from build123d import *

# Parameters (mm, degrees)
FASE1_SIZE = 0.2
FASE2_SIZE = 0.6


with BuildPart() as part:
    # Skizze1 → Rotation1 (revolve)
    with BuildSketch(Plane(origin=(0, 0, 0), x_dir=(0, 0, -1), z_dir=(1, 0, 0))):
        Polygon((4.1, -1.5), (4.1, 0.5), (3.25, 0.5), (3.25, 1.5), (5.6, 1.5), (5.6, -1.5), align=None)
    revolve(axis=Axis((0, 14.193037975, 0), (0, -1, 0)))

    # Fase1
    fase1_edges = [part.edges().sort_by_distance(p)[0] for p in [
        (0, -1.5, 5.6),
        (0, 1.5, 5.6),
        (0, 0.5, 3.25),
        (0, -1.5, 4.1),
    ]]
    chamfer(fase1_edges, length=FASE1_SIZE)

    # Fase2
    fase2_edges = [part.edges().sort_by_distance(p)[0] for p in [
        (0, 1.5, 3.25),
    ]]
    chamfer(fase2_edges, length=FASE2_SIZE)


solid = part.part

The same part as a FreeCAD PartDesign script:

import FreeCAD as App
import Part
import Sketcher
from FreeCAD import Vector


def edges_at(feature, points):
    """Names of the edges that pass closest to the given points."""
    edges = feature.Shape.Edges
    near = lambda p: min(range(len(edges)), key=lambda i: edges[i].distToShape(Part.Vertex(*p))[0])
    return sorted({f"Edge{near(p) + 1}" for p in points})

doc = App.newDocument("Part")
body = doc.addObject("PartDesign::Body", "Body")

sketch1 = body.newObject("Sketcher::SketchObject", "Sketch")
sketch1.AttachmentSupport = (doc.getObject("YZ_Plane"), [""])
sketch1.MapMode = "FlatFace"
sketch1.addGeometry([
    Part.LineSegment(Vector(0.5, -4.1, 0), Vector(-1.5, -4.1, 0)),
    Part.LineSegment(Vector(-1.5, -4.1, 0), Vector(-1.5, -5.6, 0)),
    Part.LineSegment(Vector(-1.5, -5.6, 0), Vector(1.5, -5.6, 0)),
    Part.LineSegment(Vector(1.5, -5.6, 0), Vector(1.5, -3.2, 0)),
    Part.LineSegment(Vector(1.5, -3.2, 0), Vector(0.5, -3.2, 0)),
    Part.LineSegment(Vector(0.5, -3.2, 0), Vector(0.5, -4.1, 0)),
], False)
sketch1.addConstraint([
    Sketcher.Constraint("Coincident", 0, 2, 1, 1),
    Sketcher.Constraint("Coincident", 1, 2, 2, 1),
    Sketcher.Constraint("Coincident", 2, 2, 3, 1),
    Sketcher.Constraint("Coincident", 3, 2, 4, 1),
    Sketcher.Constraint("Coincident", 4, 2, 5, 1),
    Sketcher.Constraint("Coincident", 5, 2, 0, 1),
    Sketcher.Constraint("Horizontal", 0),
    Sketcher.Constraint("Vertical", 1),
    Sketcher.Constraint("Horizontal", 2),
    Sketcher.Constraint("Vertical", 3),
    Sketcher.Constraint("Horizontal", 4),
    Sketcher.Constraint("Vertical", 5),
    Sketcher.Constraint("DistanceX", 0, 2, 0, 1, 2.0),
    Sketcher.Constraint("DistanceX", 2, 1, 2, 2, 3.0),
    Sketcher.Constraint("DistanceY", 1, 2, 1, 1, 1.5),
    Sketcher.Constraint("DistanceY", 3, 1, 3, 2, 2.35),
    Sketcher.Constraint("DistanceX", 0, 2, -1, 1, 1.5),
    Sketcher.Constraint("DistanceY", 0, 2, -1, 1, 4.1),
])
revolution = body.newObject("PartDesign::Revolution", "Revolution")
revolution.Profile = sketch1
revolution.ReferenceAxis = (sketch1, ["H_Axis"])
revolution.Angle = 360
doc.recompute()

chamfer = body.newObject("PartDesign::Chamfer", "Chamfer")
chamfer.Base = (revolution, edges_at(revolution, [
    (0, -1.5, 5.6),
    (0, 1.5, 5.6),
    (0, 0.5, 3.25),
    (0, -1.5, 4.1),
]))
chamfer.Size = 0.2
doc.recompute()

chamfer2 = body.newObject("PartDesign::Chamfer", "Chamfer001")
chamfer2.Base = (chamfer, edges_at(chamfer, [(0, 1.5, 3.25)]))
chamfer2.Size = 0.6

doc.recompute()
